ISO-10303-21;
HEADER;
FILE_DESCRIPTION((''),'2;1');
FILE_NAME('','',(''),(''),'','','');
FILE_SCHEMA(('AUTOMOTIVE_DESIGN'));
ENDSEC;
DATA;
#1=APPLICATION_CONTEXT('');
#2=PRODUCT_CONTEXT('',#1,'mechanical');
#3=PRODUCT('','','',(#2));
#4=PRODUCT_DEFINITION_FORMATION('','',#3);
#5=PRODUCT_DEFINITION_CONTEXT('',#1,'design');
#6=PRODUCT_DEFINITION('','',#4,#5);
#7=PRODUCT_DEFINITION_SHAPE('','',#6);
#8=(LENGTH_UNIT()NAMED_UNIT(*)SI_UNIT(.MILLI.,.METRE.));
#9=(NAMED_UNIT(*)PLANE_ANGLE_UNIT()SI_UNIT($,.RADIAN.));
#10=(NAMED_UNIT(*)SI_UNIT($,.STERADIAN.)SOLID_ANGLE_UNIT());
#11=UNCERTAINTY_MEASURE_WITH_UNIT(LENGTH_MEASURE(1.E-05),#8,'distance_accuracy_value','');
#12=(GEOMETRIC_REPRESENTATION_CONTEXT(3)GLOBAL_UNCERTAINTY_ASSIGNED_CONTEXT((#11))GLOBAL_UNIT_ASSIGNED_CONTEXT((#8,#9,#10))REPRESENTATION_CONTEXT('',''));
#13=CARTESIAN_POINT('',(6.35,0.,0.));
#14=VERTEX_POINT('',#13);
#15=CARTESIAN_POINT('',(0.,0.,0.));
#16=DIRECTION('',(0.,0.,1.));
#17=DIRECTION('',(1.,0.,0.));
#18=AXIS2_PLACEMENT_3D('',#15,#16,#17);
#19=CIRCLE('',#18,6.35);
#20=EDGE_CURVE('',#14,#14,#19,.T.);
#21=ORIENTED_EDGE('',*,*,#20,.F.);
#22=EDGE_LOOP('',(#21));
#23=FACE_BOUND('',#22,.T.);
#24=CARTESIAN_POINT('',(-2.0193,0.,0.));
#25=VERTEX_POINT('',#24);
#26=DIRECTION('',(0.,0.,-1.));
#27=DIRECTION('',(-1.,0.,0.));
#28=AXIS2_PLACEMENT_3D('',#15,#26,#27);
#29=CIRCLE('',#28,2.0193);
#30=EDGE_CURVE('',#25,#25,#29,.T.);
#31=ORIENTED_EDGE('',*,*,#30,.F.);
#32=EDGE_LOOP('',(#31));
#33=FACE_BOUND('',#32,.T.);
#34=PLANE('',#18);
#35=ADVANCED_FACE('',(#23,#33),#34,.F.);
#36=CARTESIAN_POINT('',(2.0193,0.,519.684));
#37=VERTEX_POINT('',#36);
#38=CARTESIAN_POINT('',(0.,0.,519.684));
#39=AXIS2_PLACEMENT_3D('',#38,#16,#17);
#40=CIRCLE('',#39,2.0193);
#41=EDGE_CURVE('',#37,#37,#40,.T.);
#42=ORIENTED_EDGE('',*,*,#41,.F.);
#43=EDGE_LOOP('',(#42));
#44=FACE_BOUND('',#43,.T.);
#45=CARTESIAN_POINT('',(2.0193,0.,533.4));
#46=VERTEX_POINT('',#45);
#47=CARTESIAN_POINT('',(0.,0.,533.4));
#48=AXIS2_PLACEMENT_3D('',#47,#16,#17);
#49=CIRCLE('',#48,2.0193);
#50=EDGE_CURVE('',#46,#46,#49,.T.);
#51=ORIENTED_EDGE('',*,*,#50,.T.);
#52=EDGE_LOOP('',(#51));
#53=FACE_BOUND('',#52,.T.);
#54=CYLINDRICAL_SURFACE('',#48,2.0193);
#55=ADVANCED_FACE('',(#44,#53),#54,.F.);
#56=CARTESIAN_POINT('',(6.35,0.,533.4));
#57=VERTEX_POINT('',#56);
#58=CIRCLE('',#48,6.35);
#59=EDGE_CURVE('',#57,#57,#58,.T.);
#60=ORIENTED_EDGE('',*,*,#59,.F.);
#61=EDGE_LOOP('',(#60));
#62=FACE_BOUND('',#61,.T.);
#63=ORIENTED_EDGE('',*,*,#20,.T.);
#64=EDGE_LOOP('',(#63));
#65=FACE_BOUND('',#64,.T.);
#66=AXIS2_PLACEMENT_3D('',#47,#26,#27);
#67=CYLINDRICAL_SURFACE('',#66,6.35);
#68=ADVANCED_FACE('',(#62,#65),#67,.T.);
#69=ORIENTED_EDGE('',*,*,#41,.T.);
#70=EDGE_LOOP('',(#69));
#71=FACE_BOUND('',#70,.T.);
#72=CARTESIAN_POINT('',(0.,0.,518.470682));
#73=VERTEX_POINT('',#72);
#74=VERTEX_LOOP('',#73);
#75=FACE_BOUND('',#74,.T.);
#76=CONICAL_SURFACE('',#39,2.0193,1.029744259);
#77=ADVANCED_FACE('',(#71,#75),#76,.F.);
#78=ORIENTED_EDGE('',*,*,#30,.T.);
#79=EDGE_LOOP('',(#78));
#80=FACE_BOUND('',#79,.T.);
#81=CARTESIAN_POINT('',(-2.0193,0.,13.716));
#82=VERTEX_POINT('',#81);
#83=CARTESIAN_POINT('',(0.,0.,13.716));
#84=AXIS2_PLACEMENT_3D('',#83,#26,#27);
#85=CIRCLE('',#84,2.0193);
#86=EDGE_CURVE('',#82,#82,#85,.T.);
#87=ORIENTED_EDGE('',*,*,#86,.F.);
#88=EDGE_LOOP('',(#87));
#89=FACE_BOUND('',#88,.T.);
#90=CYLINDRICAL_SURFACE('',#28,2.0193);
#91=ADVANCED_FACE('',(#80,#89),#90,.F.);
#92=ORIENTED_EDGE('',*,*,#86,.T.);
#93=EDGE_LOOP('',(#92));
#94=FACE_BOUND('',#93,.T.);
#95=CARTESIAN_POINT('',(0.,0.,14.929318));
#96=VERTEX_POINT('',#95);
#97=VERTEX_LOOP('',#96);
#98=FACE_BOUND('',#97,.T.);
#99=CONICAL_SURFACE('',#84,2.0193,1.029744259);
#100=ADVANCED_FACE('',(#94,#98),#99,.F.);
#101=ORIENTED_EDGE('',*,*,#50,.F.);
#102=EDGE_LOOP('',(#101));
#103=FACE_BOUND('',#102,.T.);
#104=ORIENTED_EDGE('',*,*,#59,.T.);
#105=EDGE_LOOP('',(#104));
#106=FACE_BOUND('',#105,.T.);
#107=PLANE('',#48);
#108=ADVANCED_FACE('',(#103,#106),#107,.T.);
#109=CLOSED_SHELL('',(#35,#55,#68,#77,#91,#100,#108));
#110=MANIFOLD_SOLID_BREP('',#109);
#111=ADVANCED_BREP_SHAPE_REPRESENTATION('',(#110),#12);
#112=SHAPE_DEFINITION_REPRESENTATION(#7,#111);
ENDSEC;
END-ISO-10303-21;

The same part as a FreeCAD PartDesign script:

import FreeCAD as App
import Part
import Sketcher
from FreeCAD import Vector
Q = App.Units.Quantity

doc = App.newDocument("Part")
body = doc.addObject("PartDesign::Body", "Body")

# Sketch on XY plane
sketch1 = body.newObject("Sketcher::SketchObject", "Sketch")
sketch1.AttachmentSupport = (doc.getObject("XY_Plane"), [""])
sketch1.MapMode = "FlatFace"
sketch1.addGeometry(Part.Circle(Vector(0, 0, 0), Vector(0, 0, 1), 6.35), False)
sketch1.addConstraint([
    Sketcher.Constraint("Coincident", 0, 3, -1, 1),
    Sketcher.Constraint("Diameter", 0, Q("0.5 in")),
])
pad1 = body.newObject("PartDesign::Pad", "Pad")
pad1.Profile = sketch1
pad1.Length = Q("21 in")

# Sketch on XY plane
sketch2 = body.newObject("Sketcher::SketchObject", "Sketch001")
sketch2.AttachmentSupport = (doc.getObject("XY_Plane"), [""])
sketch2.MapMode = "FlatFace"
sketch2.AttachmentOffset = App.Placement(Vector(0, 0, 21 * 25.4), App.Rotation())
sketch2.addGeometry(Part.Circle(Vector(0, 0, 0), Vector(0, 0, 1), 2.0193), False)
sketch2.addConstraint([
    Sketcher.Constraint("Coincident", 0, 3, -1, 1),
    Sketcher.Constraint("Diameter", 0, Q("0.159 in")),
])
doc.recompute()
hole = body.newObject("PartDesign::Hole", "Hole")
hole.Profile = sketch2
hole.ThreadType = "None"
hole.Diameter = Q("0.159 in")
hole.DepthType = "Dimension"
hole.Depth = Q("0.54 in")
hole.DrillPoint = "Angled"
hole.DrillPointAngle = 118

# Sketch on XY plane
sketch3 = body.newObject("Sketcher::SketchObject", "Sketch002")
sketch3.AttachmentSupport = (doc.getObject("XY_Plane"), [""])
sketch3.MapMode = "FlatFace"
sketch3.addGeometry(Part.Circle(Vector(0, 0, 0), Vector(0, 0, 1), 2.0193), False)
sketch3.addConstraint([
    Sketcher.Constraint("Coincident", 0, 3, -1, 1),
    Sketcher.Constraint("Diameter", 0, Q("0.159 in")),
])
doc.recompute()
hole2 = body.newObject("PartDesign::Hole", "Hole001")
hole2.Profile = sketch3
hole2.ThreadType = "None"
hole2.Diameter = Q("0.159 in")
hole2.DepthType = "Dimension"
hole2.Depth = Q("0.54 in")
hole2.DrillPoint = "Angled"
hole2.DrillPointAngle = 118
hole2.Reversed = True

doc.recompute()
